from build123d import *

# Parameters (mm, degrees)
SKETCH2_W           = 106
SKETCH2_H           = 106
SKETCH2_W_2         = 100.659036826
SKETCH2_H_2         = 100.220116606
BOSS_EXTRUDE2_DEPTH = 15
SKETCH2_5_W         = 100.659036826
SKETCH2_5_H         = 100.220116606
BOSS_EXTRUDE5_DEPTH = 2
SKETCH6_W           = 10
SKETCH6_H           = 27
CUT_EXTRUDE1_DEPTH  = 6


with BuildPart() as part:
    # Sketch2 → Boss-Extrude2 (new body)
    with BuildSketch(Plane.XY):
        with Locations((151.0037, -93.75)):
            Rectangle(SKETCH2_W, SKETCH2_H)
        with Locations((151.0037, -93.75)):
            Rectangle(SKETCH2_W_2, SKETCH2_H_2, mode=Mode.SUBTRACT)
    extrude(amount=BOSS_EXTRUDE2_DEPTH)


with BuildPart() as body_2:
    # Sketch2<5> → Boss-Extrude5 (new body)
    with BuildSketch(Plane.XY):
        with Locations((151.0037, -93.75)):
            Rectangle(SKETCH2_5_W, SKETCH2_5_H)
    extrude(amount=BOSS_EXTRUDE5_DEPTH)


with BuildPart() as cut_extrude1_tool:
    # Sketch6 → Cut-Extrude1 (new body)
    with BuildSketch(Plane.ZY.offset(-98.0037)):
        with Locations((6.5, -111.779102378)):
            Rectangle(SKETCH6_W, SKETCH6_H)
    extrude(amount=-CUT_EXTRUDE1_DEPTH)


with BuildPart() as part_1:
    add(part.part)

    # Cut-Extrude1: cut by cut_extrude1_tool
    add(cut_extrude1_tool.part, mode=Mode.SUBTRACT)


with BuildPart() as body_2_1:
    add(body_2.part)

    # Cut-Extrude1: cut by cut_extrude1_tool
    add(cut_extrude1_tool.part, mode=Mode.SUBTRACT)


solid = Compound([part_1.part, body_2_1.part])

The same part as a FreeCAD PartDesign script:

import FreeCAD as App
import Part
import Sketcher
Q = App.Units.Quantity

doc = App.newDocument("Part")
body = doc.addObject("PartDesign::Body", "Body")

sketch1 = body.newObject("Sketcher::SketchObject", "Sketch")
sketch1.AttachmentSupport = (doc.getObject("XY_Plane"), [""])
sketch1.MapMode = "FlatFace"
sketch1.addGeometry(Part.LineSegment(App.Vector(98.0037, -40.75, 0), App.Vector(98.0037, -146.75, 0)), False)
sketch1.addGeometry(Part.LineSegment(App.Vector(98.0037, -146.75, 0), App.Vector(204.0037, -146.75, 0)), False)
sketch1.addGeometry(Part.LineSegment(App.Vector(204.0037, -146.75, 0), App.Vector(204.0037, -40.75, 0)), False)
sketch1.addGeometry(Part.LineSegment(App.Vector(204.0037, -40.75, 0), App.Vector(98.0037, -40.75, 0)), False)
sketch1.addGeometry(Part.LineSegment(App.Vector(201.333218, -143.860058, 0), App.Vector(100.674182, -143.860058, 0)), False)
sketch1.addGeometry(Part.LineSegment(App.Vector(100.674182, -143.860058, 0), App.Vector(100.674182, -43.639942, 0)), False)
sketch1.addGeometry(Part.LineSegment(App.Vector(100.674182, -43.639942, 0), App.Vector(201.333218, -43.639942, 0)), False)
sketch1.addGeometry(Part.LineSegment(App.Vector(201.333218, -43.639942, 0), App.Vector(201.333218, -143.860058, 0)), False)
sketch1.addConstraint(Sketcher.Constraint("Coincident", 0, 2, 1, 1))
sketch1.addConstraint(Sketcher.Constraint("Coincident", 1, 2, 2, 1))
sketch1.addConstraint(Sketcher.Constraint("Coincident", 2, 2, 3, 1))
sketch1.addConstraint(Sketcher.Constraint("Coincident", 3, 2, 0, 1))
sketch1.addConstraint(Sketcher.Constraint("Coincident", 4, 2, 5, 1))
sketch1.addConstraint(Sketcher.Constraint("Coincident", 5, 2, 6, 1))
sketch1.addConstraint(Sketcher.Constraint("Coincident", 6, 2, 7, 1))
sketch1.addConstraint(Sketcher.Constraint("Coincident", 7, 2, 4, 1))
sketch1.addConstraint(Sketcher.Constraint("Vertical", 0))
sketch1.addConstraint(Sketcher.Constraint("Horizontal", 1))
sketch1.addConstraint(Sketcher.Constraint("Vertical", 2))
sketch1.addConstraint(Sketcher.Constraint("Horizontal", 3))
sketch1.addConstraint(Sketcher.Constraint("Horizontal", 4))
sketch1.addConstraint(Sketcher.Constraint("Vertical", 5))
sketch1.addConstraint(Sketcher.Constraint("Horizontal", 6))
sketch1.addConstraint(Sketcher.Constraint("Vertical", 7))
sketch1.addConstraint(Sketcher.Constraint("Equal", 3, 0))
sketch1.addConstraint(Sketcher.Constraint("DistanceX", 1, 1, 1, 2, Q("106 mm")))
sketch1.addConstraint(Sketcher.Constraint("DistanceY", 0, 2, -1, 1, Q("146.75 mm")))
sketch1.addConstraint(Sketcher.Constraint("DistanceX", -1, 1, 0, 2, Q("98.0037 mm")))
sketch1.addConstraint(Sketcher.Constraint("DistanceX", 4, 2, 4, 1, Q("100.659037 mm")))
sketch1.addConstraint(Sketcher.Constraint("DistanceY", 5, 1, 5, 2, Q("100.220117 mm")))
sketch1.addConstraint(Sketcher.Constraint("DistanceX", -1, 1, 4, 2, Q("100.674182 mm")))
sketch1.addConstraint(Sketcher.Constraint("DistanceY", 4, 2, -1, 1, Q("143.860058 mm")))
pad1 = body.newObject("PartDesign::Pad", "Pad")
pad1.Profile = sketch1
pad1.Length = 15
body2 = doc.addObject("PartDesign::Body", "Body001")

sketch2 = body2.newObject("Sketcher::SketchObject", "Sketch001")
sketch2.AttachmentSupport = (doc.getObject("XY_Plane001"), [""])
sketch2.MapMode = "FlatFace"
sketch2.addGeometry(Part.LineSegment(App.Vector(100.674182, -43.639942, 0), App.Vector(100.674182, -143.860058, 0)), False)
sketch2.addGeometry(Part.LineSegment(App.Vector(100.674182, -143.860058, 0), App.Vector(201.333218, -143.860058, 0)), False)
sketch2.addGeometry(Part.LineSegment(App.Vector(201.333218, -143.860058, 0), App.Vector(201.333218, -43.639942, 0)), False)
sketch2.addGeometry(Part.LineSegment(App.Vector(201.333218, -43.639942, 0), App.Vector(100.674182, -43.639942, 0)), False)
sketch2.addConstraint(Sketcher.Constraint("Coincident", 0, 2, 1, 1))
sketch2.addConstraint(Sketcher.Constraint("Coincident", 1, 2, 2, 1))
sketch2.addConstraint(Sketcher.Constraint("Coincident", 2, 2, 3, 1))
sketch2.addConstraint(Sketcher.Constraint("Coincident", 3, 2, 0, 1))
sketch2.addConstraint(Sketcher.Constraint("Vertical", 0))
sketch2.addConstraint(Sketcher.Constraint("Horizontal", 1))
sketch2.addConstraint(Sketcher.Constraint("Vertical", 2))
sketch2.addConstraint(Sketcher.Constraint("Horizontal", 3))
sketch2.addConstraint(Sketcher.Constraint("DistanceX", 1, 1, 1, 2, Q("100.659037 mm")))
sketch2.addConstraint(Sketcher.Constraint("DistanceY", 0, 2, 0, 1, Q("100.220117 mm")))
sketch2.addConstraint(Sketcher.Constraint("DistanceX", -1, 1, 0, 2, Q("100.674182 mm")))
sketch2.addConstraint(Sketcher.Constraint("DistanceY", 0, 2, -1, 1, Q("143.860058 mm")))
pad2 = body2.newObject("PartDesign::Pad", "Pad001")
pad2.Profile = sketch2
pad2.Length = 2
body3 = doc.addObject("PartDesign::Body", "Body002")

sketch3 = body3.newObject("Sketcher::SketchObject", "Sketch002")
sketch3.AttachmentSupport = (doc.getObject("YZ_Plane002"), [""])
sketch3.MapMode = "FlatFace"
sketch3.AttachmentOffset = App.Placement(App.Vector(0, 0, 98.0037), App.Rotation())
sketch3.addGeometry(Part.LineSegment(App.Vector(-98.279102, 1.5, 0), App.Vector(-125.279102, 1.5, 0)), False)
sketch3.addGeometry(Part.LineSegment(App.Vector(-125.279102, 1.5, 0), App.Vector(-125.279102, 11.5, 0)), False)
sketch3.addGeometry(Part.LineSegment(App.Vector(-125.279102, 11.5, 0), App.Vector(-98.279102, 11.5, 0)), False)
sketch3.addGeometry(Part.LineSegment(App.Vector(-98.279102, 11.5, 0), App.Vector(-98.279102, 1.5, 0)), False)
sketch3.addConstraint(Sketcher.Constraint("Coincident", 0, 2, 1, 1))
sketch3.addConstraint(Sketcher.Constraint("Coincident", 1, 2, 2, 1))
sketch3.addConstraint(Sketcher.Constraint("Coincident", 2, 2, 3, 1))
sketch3.addConstraint(Sketcher.Constraint("Coincident", 3, 2, 0, 1))
sketch3.addConstraint(Sketcher.Constraint("Horizontal", 0))
sketch3.addConstraint(Sketcher.Constraint("Vertical", 1))
sketch3.addConstraint(Sketcher.Constraint("Horizontal", 2))
sketch3.addConstraint(Sketcher.Constraint("Vertical", 3))
sketch3.addConstraint(Sketcher.Constraint("DistanceX", 0, 2, 0, 1, Q("27 mm")))
sketch3.addConstraint(Sketcher.Constraint("DistanceY", 1, 1, 1, 2, Q("10 mm")))
sketch3.addConstraint(Sketcher.Constraint("DistanceY", -1, 1, 0, 2, Q("1.5 mm")))
sketch3.addConstraint(Sketcher.Constraint("DistanceX", 0, 2, -1, 1, Q("125.279102 mm")))
pad3 = body3.newObject("PartDesign::Pad", "Pad002")
pad3.Profile = sketch3
pad3.Length = 6
doc.recompute()

body4 = doc.addObject("PartDesign::Body", "Body003")
body4.BaseFeature = body3
boolean = body.newObject("PartDesign::Boolean", "Boolean")
boolean.Type = "Cut"
boolean.addObjects([body4])
doc.recompute()

boolean2 = body2.newObject("PartDesign::Boolean", "Boolean001")
boolean2.Type = "Cut"
boolean2.addObjects([body3])

doc.recompute()
